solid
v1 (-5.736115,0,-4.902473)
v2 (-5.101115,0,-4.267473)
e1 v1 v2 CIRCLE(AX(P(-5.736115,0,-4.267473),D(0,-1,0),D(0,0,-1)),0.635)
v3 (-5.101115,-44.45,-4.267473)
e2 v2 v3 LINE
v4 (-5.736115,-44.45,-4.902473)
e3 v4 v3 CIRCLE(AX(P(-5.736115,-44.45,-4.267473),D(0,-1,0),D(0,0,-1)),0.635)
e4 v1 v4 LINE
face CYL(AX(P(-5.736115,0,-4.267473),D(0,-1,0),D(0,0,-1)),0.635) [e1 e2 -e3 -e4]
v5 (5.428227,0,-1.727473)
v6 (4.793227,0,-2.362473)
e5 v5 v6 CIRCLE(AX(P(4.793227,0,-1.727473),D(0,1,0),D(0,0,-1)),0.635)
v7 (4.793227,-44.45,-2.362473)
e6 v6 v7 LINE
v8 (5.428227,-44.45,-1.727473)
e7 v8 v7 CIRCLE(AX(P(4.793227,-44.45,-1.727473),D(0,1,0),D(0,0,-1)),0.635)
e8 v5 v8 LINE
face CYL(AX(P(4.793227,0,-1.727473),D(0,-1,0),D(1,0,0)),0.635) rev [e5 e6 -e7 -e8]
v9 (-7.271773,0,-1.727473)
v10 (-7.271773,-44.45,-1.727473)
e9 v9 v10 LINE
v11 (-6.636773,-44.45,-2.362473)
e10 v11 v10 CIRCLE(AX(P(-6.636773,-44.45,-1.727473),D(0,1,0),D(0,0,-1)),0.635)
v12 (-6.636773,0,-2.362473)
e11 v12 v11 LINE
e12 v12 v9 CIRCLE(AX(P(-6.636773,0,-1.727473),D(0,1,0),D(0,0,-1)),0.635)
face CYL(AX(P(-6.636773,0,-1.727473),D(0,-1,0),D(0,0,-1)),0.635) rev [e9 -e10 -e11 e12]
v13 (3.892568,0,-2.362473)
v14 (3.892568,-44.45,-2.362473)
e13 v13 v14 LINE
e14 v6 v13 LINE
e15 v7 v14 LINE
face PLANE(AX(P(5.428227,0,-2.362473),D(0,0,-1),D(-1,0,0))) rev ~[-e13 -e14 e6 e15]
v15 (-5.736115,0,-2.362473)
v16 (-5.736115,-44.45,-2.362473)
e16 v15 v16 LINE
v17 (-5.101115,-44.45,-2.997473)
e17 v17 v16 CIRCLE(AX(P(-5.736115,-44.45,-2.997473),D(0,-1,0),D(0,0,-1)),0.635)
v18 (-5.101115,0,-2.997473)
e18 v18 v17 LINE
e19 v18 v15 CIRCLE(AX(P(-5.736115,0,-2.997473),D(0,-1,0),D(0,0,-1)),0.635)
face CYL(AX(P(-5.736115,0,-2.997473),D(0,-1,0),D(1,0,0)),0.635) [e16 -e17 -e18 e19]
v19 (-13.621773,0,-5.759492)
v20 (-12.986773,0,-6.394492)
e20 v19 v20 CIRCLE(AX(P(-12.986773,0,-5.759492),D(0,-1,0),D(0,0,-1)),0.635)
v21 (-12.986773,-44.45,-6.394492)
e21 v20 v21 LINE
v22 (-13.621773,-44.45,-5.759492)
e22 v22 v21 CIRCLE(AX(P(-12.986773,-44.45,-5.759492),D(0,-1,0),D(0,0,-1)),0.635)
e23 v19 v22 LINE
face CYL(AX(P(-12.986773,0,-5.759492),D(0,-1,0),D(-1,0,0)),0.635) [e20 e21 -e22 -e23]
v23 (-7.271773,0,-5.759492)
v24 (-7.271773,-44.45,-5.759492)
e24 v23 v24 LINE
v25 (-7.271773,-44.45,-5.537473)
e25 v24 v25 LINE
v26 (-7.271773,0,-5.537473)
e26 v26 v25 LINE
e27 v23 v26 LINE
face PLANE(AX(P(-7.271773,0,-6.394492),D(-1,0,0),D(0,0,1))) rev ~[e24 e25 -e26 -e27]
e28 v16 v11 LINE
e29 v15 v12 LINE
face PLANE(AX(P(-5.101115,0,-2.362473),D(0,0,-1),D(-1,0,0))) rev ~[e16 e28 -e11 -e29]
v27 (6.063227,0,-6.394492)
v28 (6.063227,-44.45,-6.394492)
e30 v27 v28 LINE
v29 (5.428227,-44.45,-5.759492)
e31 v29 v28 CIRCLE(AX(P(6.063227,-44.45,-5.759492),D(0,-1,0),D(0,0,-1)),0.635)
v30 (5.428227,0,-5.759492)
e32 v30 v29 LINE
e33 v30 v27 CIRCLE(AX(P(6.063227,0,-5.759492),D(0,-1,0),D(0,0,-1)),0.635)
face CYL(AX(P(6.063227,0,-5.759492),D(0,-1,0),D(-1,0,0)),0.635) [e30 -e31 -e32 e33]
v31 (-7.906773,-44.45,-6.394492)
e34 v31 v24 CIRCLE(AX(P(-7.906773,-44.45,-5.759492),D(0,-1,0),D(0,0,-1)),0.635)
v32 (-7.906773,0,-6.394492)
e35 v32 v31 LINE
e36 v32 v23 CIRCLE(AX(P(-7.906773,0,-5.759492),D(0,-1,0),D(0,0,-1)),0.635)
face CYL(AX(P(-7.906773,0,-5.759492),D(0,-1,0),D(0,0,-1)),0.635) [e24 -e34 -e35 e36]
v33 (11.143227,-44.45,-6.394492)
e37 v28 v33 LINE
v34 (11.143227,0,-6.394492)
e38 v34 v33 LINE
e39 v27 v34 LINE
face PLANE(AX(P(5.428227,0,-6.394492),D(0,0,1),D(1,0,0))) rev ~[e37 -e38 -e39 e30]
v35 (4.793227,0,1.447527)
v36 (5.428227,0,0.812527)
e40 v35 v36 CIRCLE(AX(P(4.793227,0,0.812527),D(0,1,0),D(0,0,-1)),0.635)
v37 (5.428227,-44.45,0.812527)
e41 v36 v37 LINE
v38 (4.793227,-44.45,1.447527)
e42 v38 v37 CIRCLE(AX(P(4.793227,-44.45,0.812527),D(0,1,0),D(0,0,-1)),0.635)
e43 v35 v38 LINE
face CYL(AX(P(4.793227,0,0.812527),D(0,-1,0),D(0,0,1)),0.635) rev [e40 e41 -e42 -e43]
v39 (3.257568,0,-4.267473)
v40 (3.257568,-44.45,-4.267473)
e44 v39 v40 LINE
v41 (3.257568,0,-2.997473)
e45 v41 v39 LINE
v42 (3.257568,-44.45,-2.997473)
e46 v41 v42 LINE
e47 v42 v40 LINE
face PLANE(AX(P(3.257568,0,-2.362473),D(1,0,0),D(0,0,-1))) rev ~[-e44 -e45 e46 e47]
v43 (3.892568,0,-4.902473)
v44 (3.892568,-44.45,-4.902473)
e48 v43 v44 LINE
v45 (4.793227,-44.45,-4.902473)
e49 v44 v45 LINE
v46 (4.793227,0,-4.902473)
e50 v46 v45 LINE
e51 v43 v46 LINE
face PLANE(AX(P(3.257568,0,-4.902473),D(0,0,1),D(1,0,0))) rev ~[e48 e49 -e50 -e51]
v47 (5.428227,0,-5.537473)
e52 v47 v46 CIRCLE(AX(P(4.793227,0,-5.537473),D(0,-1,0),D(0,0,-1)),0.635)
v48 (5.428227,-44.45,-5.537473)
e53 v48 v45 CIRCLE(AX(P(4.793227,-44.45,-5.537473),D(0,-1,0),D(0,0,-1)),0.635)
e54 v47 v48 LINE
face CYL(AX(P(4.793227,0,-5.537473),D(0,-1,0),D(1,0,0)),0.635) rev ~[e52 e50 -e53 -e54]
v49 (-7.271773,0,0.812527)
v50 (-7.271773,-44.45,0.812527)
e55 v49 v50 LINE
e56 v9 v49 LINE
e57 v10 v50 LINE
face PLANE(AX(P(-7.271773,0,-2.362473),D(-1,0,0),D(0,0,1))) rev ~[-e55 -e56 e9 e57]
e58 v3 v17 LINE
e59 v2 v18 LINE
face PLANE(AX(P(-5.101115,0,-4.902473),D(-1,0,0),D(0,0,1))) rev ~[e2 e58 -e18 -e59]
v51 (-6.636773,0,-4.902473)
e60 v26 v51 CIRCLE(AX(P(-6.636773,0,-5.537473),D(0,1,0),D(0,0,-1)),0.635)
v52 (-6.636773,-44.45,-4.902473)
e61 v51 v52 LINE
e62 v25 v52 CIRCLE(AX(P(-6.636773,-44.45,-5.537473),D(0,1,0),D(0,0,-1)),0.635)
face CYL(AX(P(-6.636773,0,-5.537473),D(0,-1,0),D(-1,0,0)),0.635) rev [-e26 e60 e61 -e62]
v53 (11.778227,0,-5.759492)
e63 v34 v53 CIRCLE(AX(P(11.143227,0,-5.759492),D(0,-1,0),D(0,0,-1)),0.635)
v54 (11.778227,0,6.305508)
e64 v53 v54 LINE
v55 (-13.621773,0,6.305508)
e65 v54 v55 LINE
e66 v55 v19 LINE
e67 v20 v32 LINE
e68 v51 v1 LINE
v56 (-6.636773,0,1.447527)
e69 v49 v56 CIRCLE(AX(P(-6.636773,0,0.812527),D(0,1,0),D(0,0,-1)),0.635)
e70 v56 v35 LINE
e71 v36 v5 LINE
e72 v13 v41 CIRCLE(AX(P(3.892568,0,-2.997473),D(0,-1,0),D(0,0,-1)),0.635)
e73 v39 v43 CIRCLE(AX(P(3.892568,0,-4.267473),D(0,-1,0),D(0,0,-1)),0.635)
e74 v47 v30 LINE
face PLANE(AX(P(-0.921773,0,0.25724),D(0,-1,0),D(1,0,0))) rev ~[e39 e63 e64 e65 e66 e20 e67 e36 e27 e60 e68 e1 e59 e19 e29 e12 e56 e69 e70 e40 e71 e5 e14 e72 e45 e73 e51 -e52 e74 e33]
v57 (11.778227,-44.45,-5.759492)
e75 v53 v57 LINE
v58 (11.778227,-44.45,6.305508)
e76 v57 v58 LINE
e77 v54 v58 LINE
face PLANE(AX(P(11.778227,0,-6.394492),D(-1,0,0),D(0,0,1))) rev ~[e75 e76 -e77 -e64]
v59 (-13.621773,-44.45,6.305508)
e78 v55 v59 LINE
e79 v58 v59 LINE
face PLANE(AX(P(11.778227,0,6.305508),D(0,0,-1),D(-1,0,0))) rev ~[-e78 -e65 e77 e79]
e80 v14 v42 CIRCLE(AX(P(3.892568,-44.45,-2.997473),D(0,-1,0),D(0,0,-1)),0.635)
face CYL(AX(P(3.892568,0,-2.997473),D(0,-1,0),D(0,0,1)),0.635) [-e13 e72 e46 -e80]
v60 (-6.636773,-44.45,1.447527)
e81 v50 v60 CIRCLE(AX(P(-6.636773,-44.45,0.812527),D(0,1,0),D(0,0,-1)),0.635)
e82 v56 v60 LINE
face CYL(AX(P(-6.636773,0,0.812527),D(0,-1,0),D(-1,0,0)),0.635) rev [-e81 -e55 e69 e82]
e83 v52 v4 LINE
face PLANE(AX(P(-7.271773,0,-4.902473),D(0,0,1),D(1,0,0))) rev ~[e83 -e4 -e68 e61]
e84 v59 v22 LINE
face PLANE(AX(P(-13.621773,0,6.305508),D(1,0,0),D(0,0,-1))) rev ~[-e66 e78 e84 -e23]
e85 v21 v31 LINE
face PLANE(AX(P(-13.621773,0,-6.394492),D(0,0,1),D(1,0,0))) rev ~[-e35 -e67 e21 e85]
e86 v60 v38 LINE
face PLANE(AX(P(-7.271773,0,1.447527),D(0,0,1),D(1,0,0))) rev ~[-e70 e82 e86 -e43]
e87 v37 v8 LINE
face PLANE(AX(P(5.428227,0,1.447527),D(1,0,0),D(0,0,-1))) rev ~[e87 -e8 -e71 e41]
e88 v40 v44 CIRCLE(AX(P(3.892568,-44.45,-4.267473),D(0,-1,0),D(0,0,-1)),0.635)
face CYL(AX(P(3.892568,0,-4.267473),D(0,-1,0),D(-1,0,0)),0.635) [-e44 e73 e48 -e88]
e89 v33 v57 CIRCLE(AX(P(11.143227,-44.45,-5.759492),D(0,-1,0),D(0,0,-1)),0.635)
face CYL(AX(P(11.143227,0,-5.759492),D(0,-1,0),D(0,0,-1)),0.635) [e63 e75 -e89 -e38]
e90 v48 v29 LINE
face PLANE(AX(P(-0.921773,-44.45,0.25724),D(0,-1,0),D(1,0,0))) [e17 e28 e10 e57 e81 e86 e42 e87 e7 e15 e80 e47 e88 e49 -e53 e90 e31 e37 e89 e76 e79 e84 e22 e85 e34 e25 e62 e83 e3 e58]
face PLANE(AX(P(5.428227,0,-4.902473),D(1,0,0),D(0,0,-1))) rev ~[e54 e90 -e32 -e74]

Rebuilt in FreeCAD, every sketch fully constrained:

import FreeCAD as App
import Part
import Sketcher
from FreeCAD import Vector
Q = App.Units.Quantity


def edges_at(feature, points):
    """Names of the edges that pass closest to the given points."""
    edges = feature.Shape.Edges
    near = lambda p: min(range(len(edges)), key=lambda i: edges[i].distToShape(Part.Vertex(*p))[0])
    return sorted({f"Edge{near(p) + 1}" for p in points})

doc = App.newDocument("Part")
body = doc.addObject("PartDesign::Body", "Body")

sketch1 = body.newObject("Sketcher::SketchObject", "Sketch")
sketch1.AttachmentSupport = (doc.getObject("XZ_Plane"), [""])
sketch1.MapMode = "FlatFace"
sketch1.addGeometry(Part.LineSegment(Vector(5.4, -4.9, 0), Vector(5.4, -6.4, 0)), False)
sketch1.addGeometry(Part.LineSegment(Vector(5.4, -6.4, 0), Vector(11.8, -6.4, 0)), False)
sketch1.addGeometry(Part.LineSegment(Vector(11.8, -6.4, 0), Vector(11.8, 6.3, 0)), False)
sketch1.addGeometry(Part.LineSegment(Vector(11.8, 6.3, 0), Vector(-13.6, 6.3, 0)), False)
sketch1.addGeometry(Part.LineSegment(Vector(-13.6, 6.3, 0), Vector(-13.6, -6.4, 0)), False)
sketch1.addGeometry(Part.LineSegment(Vector(-13.6, -6.4, 0), Vector(-7.3, -6.4, 0)), False)
sketch1.addGeometry(Part.LineSegment(Vector(-7.3, -6.4, 0), Vector(-7.3, -4.9, 0)), False)
sketch1.addGeometry(Part.LineSegment(Vector(-7.3, -4.9, 0), Vector(-5.1, -4.9, 0)), False)
sketch1.addGeometry(Part.LineSegment(Vector(-5.1, -4.9, 0), Vector(-5.1, -2.4, 0)), False)
sketch1.addGeometry(Part.LineSegment(Vector(-5.1, -2.4, 0), Vector(-7.3, -2.4, 0)), False)
sketch1.addGeometry(Part.LineSegment(Vector(-7.3, -2.4, 0), Vector(-7.3, 1.4, 0)), False)
sketch1.addGeometry(Part.LineSegment(Vector(-7.3, 1.4, 0), Vector(5.4, 1.4, 0)), False)
sketch1.addGeometry(Part.LineSegment(Vector(5.4, 1.4, 0), Vector(5.4, -2.4, 0)), False)
sketch1.addGeometry(Part.LineSegment(Vector(5.4, -2.4, 0), Vector(3.3, -2.4, 0)), False)
sketch1.addGeometry(Part.LineSegment(Vector(3.3, -2.4, 0), Vector(3.3, -4.9, 0)), False)
sketch1.addGeometry(Part.LineSegment(Vector(3.3, -4.9, 0), Vector(5.4, -4.9, 0)), False)
sketch1.addConstraint(Sketcher.Constraint("Coincident", 0, 2, 1, 1))
sketch1.addConstraint(Sketcher.Constraint("Coincident", 1, 2, 2, 1))
sketch1.addConstraint(Sketcher.Constraint("Coincident", 2, 2, 3, 1))
sketch1.addConstraint(Sketcher.Constraint("Coincident", 3, 2, 4, 1))
sketch1.addConstraint(Sketcher.Constraint("Coincident", 4, 2, 5, 1))
sketch1.addConstraint(Sketcher.Constraint("Coincident", 5, 2, 6, 1))
sketch1.addConstraint(Sketcher.Constraint("Coincident", 6, 2, 7, 1))
sketch1.addConstraint(Sketcher.Constraint("Coincident", 7, 2, 8, 1))
sketch1.addConstraint(Sketcher.Constraint("Coincident", 8, 2, 9, 1))
sketch1.addConstraint(Sketcher.Constraint("Coincident", 9, 2, 10, 1))
sketch1.addConstraint(Sketcher.Constraint("Coincident", 10, 2, 11, 1))
sketch1.addConstraint(Sketcher.Constraint("Coincident", 11, 2, 12, 1))
sketch1.addConstraint(Sketcher.Constraint("Coincident", 12, 2, 13, 1))
sketch1.addConstraint(Sketcher.Constraint("Coincident", 13, 2, 14, 1))
sketch1.addConstraint(Sketcher.Constraint("Coincident", 14, 2, 15, 1))
sketch1.addConstraint(Sketcher.Constraint("Coincident", 15, 2, 0, 1))
sketch1.addConstraint(Sketcher.Constraint("Vertical", 0))
sketch1.addConstraint(Sketcher.Constraint("Horizontal", 1))
sketch1.addConstraint(Sketcher.Constraint("Vertical", 2))
sketch1.addConstraint(Sketcher.Constraint("Horizontal", 3))
sketch1.addConstraint(Sketcher.Constraint("Vertical", 4))
sketch1.addConstraint(Sketcher.Constraint("Horizontal", 5))
sketch1.addConstraint(Sketcher.Constraint("Vertical", 6))
sketch1.addConstraint(Sketcher.Constraint("Horizontal", 7))
sketch1.addConstraint(Sketcher.Constraint("Vertical", 8))
sketch1.addConstraint(Sketcher.Constraint("Horizontal", 9))
sketch1.addConstraint(Sketcher.Constraint("Vertical", 10))
sketch1.addConstraint(Sketcher.Constraint("Horizontal", 11))
sketch1.addConstraint(Sketcher.Constraint("Vertical", 12))
sketch1.addConstraint(Sketcher.Constraint("Horizontal", 13))
sketch1.addConstraint(Sketcher.Constraint("Vertical", 14))
sketch1.addConstraint(Sketcher.Constraint("Horizontal", 15))
sketch1.addConstraint(Sketcher.Constraint("Horizontal", 1, 2, 4, 2))
sketch1.addConstraint(Sketcher.Constraint("Horizontal", 9, 2, 12, 2))
sketch1.addConstraint(Sketcher.Constraint("Horizontal", 7, 2, 14, 2))
sketch1.addConstraint(Sketcher.Constraint("Vertical", 6, 2, 9, 2))
sketch1.addConstraint(Sketcher.Constraint("Vertical", 0, 2, 11, 2))
sketch1.addConstraint(Sketcher.Constraint("Equal", 1, 5))
sketch1.addConstraint(Sketcher.Constraint("Equal", 9, 13))
sketch1.addConstraint(Sketcher.Constraint("Equal", 11, 2))
sketch1.addConstraint(Sketcher.Constraint("DistanceX", 3, 2, 3, 1, Q("1 in")))
sketch1.addConstraint(Sketcher.Constraint("DistanceX", 11, 1, 11, 2, Q("0.5 in")))
sketch1.addConstraint(Sketcher.Constraint("DistanceY", 8, 1, 8, 2, Q("0.1 in")))
sketch1.addConstraint(Sketcher.Constraint("DistanceY", 10, 1, 10, 2, Q("0.15 in")))
sketch1.addConstraint(Sketcher.Constraint("DistanceX", 13, 2, 13, 1, Q("2.170659 mm")))
sketch1.addConstraint(Sketcher.Constraint("DistanceY", 0, 2, 0, 1, Q("1.492019 mm")))
sketch1.addConstraint(Sketcher.Constraint("DistanceY", 0, 2, -1, 1, Q("6.394492 mm")))
sketch1.addConstraint(Sketcher.Constraint("DistanceX", -1, 1, 13, 2, Q("3.257568 mm")))
pad1 = body.newObject("PartDesign::Pad", "Pad")
pad1.Profile = sketch1
pad1.Length = Q("1.75 in")
doc.recompute()

fillet = body.newObject("PartDesign::Fillet", "Fillet")
fillet.Base = (pad1, edges_at(pad1, [
    (-7.272, -22.225, 1.448),
    (-7.272, -22.225, -2.362),
    (-5.101, -22.225, -2.362),
    (-5.101, -22.225, -4.902),
    (-7.272, -22.225, -4.902),
    (5.428, -22.225, 1.448),
    (5.428, -22.225, -2.362),
    (3.258, -22.225, -2.362),
    (3.258, -22.225, -4.902),
    (5.428, -22.225, -4.902),
    (-7.272, -22.225, -6.394),
    (5.428, -22.225, -6.394),
    (11.778, -22.225, -6.394),
    (-13.622, -22.225, -6.394),
]))
fillet.Radius = Q("0.025 in")

doc.recompute()
